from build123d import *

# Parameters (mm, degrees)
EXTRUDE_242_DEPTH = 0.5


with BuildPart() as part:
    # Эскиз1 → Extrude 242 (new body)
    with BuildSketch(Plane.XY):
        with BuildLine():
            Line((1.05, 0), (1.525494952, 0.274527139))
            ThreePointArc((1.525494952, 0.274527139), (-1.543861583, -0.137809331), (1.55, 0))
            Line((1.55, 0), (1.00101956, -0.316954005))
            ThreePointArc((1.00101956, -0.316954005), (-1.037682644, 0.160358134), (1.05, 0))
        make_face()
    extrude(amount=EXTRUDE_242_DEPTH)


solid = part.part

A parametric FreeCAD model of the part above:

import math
import FreeCAD as App
import Part
import Sketcher
from FreeCAD import Vector
Q = App.Units.Quantity

doc = App.newDocument("Part")
body = doc.addObject("PartDesign::Body", "Body")

# Sketch on XY plane
sketch1 = body.newObject("Sketcher::SketchObject", "Sketch")
sketch1.AttachmentSupport = (doc.getObject("XY_Plane"), [""])
sketch1.MapMode = "FlatFace"
sketch1.addGeometry(Part.LineSegment(Vector(1.05, 0, 0), Vector(1.53, 0.27, 0)), False)
sketch1.addGeometry(Part.ArcOfCircle(Part.Circle(Vector(0, 0, 0), Vector(0, 0, 1), 1.55), math.radians(10), math.radians(360)), False)
sketch1.addGeometry(Part.LineSegment(Vector(1.55, 0, 0), Vector(1, -0.32, 0)), False)
sketch1.addGeometry(Part.ArcOfCircle(Part.Circle(Vector(0, 0, 0), Vector(0, 0, 1), 1.05), math.radians(0), math.radians(342)), False)
sketch1.addConstraint(Sketcher.Constraint("Coincident", 0, 2, 1, 1))
sketch1.addConstraint(Sketcher.Constraint("Coincident", 1, 2, 2, 1))
sketch1.addConstraint(Sketcher.Constraint("Coincident", 2, 2, 3, 2))
sketch1.addConstraint(Sketcher.Constraint("Coincident", 3, 1, 0, 1))
sketch1.addConstraint(Sketcher.Constraint("Coincident", 1, 3, -1, 1))
sketch1.addConstraint(Sketcher.Constraint("Coincident", 3, 3, -1, 1))
sketch1.addConstraint(Sketcher.Constraint("PointOnObject", 1, 2, -1))
sketch1.addConstraint(Sketcher.Constraint("PointOnObject", 3, 1, -1))
sketch1.addConstraint(Sketcher.Constraint("Parallel", 0, 2))
sketch1.addConstraint(Sketcher.Constraint("Angle", 0, Q("30 deg")))
sketch1.addConstraint(Sketcher.Constraint("Radius", 1, Q("1.55 mm")))
sketch1.addConstraint(Sketcher.Constraint("Radius", 3, Q("1.05 mm")))
pad1 = body.newObject("PartDesign::Pad", "Pad")
pad1.Profile = sketch1
pad1.Length = 0.5

doc.recompute()
